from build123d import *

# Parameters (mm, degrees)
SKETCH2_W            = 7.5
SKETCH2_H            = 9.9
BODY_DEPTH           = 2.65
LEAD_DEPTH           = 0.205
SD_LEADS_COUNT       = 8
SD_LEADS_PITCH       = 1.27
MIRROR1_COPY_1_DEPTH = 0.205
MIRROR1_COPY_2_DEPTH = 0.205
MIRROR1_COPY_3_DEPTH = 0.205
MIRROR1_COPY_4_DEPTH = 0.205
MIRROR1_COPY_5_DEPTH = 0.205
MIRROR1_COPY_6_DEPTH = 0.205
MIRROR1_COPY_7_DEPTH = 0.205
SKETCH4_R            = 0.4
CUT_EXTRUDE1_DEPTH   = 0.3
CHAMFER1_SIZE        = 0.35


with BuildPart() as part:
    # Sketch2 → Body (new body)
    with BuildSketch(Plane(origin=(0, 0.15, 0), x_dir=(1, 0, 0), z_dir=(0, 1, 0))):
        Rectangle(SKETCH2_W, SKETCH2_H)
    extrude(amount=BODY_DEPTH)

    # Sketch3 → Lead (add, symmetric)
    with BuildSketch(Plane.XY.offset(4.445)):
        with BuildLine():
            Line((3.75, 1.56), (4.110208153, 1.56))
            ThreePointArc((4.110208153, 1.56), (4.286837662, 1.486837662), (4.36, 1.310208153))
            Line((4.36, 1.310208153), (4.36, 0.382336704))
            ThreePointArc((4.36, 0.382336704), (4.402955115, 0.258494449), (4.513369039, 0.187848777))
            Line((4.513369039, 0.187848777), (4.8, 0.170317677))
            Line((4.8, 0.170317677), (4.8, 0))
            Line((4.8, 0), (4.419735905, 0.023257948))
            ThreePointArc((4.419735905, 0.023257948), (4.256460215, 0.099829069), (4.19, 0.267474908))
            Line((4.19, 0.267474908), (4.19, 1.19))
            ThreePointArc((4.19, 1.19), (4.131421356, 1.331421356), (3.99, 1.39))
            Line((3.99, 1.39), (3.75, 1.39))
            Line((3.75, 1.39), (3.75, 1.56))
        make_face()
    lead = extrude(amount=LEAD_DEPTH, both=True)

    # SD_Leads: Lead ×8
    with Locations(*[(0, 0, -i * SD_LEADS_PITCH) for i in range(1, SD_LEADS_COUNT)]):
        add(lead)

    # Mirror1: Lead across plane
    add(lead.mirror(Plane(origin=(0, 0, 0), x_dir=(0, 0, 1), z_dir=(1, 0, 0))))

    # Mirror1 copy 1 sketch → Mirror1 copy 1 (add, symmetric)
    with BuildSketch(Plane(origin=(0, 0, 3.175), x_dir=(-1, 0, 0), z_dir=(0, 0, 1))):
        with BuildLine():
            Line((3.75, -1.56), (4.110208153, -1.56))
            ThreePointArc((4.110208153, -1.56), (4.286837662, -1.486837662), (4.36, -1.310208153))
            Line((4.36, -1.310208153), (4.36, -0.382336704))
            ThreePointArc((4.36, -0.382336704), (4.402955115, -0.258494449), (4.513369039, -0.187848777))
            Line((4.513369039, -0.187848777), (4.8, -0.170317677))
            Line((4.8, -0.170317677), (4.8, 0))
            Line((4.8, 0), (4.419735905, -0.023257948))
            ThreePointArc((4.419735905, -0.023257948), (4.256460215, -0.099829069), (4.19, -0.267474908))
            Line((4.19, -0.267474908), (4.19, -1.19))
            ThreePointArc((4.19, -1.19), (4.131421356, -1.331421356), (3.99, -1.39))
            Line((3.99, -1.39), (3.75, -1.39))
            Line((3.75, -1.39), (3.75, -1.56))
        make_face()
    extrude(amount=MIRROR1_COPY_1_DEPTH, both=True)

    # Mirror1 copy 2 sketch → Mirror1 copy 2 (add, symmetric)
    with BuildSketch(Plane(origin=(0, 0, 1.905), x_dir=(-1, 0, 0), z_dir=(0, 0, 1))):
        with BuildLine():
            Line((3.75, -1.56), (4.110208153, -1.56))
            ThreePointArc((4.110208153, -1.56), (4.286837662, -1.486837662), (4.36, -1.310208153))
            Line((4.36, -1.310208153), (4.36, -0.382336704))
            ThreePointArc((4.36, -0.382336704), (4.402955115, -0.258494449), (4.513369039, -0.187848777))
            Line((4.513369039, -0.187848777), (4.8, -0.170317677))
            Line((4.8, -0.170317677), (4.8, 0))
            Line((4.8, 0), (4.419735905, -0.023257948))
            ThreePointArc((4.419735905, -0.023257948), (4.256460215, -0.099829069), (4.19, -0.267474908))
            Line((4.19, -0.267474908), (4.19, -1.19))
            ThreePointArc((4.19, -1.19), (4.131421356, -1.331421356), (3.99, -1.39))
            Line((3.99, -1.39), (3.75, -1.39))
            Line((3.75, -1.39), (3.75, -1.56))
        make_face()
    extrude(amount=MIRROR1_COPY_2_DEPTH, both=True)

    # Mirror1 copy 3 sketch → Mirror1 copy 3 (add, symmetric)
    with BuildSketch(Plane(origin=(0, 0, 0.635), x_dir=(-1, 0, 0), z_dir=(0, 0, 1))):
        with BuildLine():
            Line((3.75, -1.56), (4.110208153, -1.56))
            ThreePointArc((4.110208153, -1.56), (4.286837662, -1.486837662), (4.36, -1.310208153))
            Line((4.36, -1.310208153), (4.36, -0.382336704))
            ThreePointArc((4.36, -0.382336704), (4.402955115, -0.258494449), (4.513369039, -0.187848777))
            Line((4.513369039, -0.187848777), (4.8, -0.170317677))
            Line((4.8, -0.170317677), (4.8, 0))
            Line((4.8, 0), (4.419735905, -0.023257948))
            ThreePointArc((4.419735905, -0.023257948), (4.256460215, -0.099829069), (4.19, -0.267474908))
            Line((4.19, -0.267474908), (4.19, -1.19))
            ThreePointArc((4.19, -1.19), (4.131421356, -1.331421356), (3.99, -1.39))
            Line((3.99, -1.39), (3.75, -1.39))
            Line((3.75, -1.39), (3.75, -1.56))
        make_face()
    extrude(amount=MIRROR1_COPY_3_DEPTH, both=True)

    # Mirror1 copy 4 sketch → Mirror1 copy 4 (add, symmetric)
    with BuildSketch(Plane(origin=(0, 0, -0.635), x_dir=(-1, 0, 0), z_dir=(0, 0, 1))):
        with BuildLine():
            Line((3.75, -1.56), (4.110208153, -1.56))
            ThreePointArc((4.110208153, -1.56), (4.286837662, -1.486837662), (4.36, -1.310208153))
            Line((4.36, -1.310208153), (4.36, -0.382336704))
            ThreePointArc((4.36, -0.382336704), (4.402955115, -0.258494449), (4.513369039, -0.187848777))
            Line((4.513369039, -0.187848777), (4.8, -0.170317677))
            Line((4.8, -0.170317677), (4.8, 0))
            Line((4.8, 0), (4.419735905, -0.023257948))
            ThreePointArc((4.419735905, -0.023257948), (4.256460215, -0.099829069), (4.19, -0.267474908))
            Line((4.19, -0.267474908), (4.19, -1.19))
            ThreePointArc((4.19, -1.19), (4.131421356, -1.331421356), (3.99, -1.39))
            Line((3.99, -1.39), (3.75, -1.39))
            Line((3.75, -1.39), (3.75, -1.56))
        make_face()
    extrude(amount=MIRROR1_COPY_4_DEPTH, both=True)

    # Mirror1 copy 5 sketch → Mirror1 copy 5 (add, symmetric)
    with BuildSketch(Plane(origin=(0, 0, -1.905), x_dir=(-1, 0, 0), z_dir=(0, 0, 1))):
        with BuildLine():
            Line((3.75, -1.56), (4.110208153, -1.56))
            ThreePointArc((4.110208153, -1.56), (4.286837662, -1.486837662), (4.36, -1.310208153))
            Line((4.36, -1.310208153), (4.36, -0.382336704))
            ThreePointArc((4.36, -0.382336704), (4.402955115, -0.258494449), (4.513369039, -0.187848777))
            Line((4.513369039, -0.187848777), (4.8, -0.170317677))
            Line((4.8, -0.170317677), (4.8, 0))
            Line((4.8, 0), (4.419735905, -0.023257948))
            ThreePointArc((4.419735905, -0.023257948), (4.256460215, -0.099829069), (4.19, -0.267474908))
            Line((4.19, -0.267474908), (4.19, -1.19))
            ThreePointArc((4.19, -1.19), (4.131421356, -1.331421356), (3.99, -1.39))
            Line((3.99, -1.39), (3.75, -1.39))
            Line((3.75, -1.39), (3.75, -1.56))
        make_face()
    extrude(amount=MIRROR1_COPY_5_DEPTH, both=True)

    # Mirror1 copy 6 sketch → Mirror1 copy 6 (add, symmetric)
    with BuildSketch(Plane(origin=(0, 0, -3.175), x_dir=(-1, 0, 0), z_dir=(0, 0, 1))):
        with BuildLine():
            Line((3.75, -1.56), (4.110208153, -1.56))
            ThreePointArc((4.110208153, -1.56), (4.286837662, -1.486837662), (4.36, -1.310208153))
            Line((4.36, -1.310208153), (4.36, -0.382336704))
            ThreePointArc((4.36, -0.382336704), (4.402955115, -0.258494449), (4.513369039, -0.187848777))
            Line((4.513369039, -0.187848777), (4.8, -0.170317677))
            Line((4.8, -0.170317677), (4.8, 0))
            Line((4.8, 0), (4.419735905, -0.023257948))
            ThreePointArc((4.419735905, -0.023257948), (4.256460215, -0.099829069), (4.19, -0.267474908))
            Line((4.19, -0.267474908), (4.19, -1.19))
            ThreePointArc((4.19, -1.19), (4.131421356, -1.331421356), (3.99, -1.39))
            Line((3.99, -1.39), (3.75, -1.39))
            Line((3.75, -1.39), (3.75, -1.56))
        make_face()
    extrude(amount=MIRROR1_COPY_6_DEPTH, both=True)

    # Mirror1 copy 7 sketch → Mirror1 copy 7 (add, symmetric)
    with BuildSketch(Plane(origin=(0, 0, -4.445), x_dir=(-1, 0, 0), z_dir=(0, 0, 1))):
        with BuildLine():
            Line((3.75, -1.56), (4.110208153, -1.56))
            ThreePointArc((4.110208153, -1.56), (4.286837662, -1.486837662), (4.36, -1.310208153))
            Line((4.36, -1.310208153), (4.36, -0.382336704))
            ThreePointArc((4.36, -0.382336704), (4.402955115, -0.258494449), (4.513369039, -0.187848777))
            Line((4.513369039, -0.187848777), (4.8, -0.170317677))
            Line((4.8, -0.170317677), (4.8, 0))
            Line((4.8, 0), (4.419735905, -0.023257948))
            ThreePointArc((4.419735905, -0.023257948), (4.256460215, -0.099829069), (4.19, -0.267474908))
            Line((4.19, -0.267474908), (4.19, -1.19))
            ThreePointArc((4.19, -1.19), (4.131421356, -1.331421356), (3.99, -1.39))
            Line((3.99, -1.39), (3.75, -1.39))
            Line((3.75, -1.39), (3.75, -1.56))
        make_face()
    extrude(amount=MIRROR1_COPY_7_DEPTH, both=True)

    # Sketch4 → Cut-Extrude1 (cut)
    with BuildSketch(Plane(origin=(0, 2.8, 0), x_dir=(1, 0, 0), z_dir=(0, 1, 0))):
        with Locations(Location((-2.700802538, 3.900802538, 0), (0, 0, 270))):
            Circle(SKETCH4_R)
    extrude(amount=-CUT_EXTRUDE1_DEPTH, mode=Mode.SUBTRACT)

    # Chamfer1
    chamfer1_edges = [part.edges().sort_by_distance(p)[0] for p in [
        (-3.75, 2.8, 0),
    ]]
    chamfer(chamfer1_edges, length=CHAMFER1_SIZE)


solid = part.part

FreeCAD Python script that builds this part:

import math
import FreeCAD as App
import Part
import Sketcher
from FreeCAD import Vector
Q = App.Units.Quantity


def edges_at(feature, points):
    """Names of the edges that pass closest to the given points."""
    edges = feature.Shape.Edges
    near = lambda p: min(range(len(edges)), key=lambda i: edges[i].distToShape(Part.Vertex(*p))[0])
    return sorted({f"Edge{near(p) + 1}" for p in points})


def add_polygon(sketch, points):
    """Adds a closed chain of lines whose ends are joined by coincident constraints."""
    first, n = sketch.GeometryCount, len(points)
    for a, b in zip(points, points[1:] + points[:1]):
        sketch.addGeometry(Part.LineSegment(App.Vector(*a, 0), App.Vector(*b, 0)), False)
    for i in range(n):
        sketch.addConstraint(Sketcher.Constraint("Coincident", first + i, 2, first + (i + 1) % n, 1))

doc = App.newDocument("Part")
body = doc.addObject("PartDesign::Body", "Body")

# Sketch on XZ plane
sketch1 = body.newObject("Sketcher::SketchObject", "Sketch")
sketch1.AttachmentSupport = (doc.getObject("XZ_Plane"), [""])
sketch1.MapMode = "FlatFace"
sketch1.AttachmentOffset = App.Placement(Vector(0, 0, -0.15), App.Rotation())
add_polygon(sketch1, [(-4, -5), (-4, 5), (4, 5), (4, -5)])  # lines 0-3
sketch1.addConstraint([
    Sketcher.Constraint("Vertical", 0),
    Sketcher.Constraint("Horizontal", 1),
    Sketcher.Constraint("Vertical", 2),
    Sketcher.Constraint("Horizontal", 3),
    Sketcher.Constraint("Symmetric", 0, 2, 2, 2, -1, 1),
    Sketcher.Constraint("DistanceX", 1, 1, 1, 2, Q("7.5 mm")),
    Sketcher.Constraint("DistanceY", 0, 1, 0, 2, Q("9.9 mm")),
])
pad1 = body.newObject("PartDesign::Pad", "Pad")
pad1.Profile = sketch1
pad1.Length = 2.65
pad1.Reversed = True

# Sketch on XY plane
sketch2 = body.newObject("Sketcher::SketchObject", "Sketch001")
sketch2.AttachmentSupport = (doc.getObject("XY_Plane"), [""])
sketch2.MapMode = "FlatFace"
sketch2.AttachmentOffset = App.Placement(Vector(0, 0, 4.445), App.Rotation())
sketch2.addGeometry([
    Part.LineSegment(Vector(4.11, 1.56, 0), Vector(3.75, 1.56, 0)),  # 0
    Part.LineSegment(Vector(3.75, 1.56, 0), Vector(3.75, 1.39, 0)),  # 1
    Part.LineSegment(Vector(3.75, 1.39, 0), Vector(3.99, 1.39, 0)),  # 2
    Part.ArcOfCircle(Part.Circle(Vector(3.99, 1.19, 0), Vector(0, 0, 1), 0.2), math.radians(0), math.radians(90)),  # 3
    Part.LineSegment(Vector(4.19, 1.19, 0), Vector(4.19, 0.27, 0)),  # 4
    Part.ArcOfCircle(Part.Circle(Vector(4.43, 0.27, 0), Vector(0, 0, 1), 0.24), math.radians(-180), math.radians(-94)),  # 5
    Part.LineSegment(Vector(4.42, 0.02, 0), Vector(4.8, 0, 0)),  # 6
    Part.LineSegment(Vector(4.8, 0, 0), Vector(4.8, 0.17, 0)),  # 7
    Part.LineSegment(Vector(4.8, 0.17, 0), Vector(4.51, 0.19, 0)),  # 8
    Part.ArcOfCircle(Part.Circle(Vector(4.56, 0.38, 0), Vector(0, 0, 1), 0.2), math.radians(180), math.radians(257)),  # 9
    Part.LineSegment(Vector(4.36, 0.38, 0), Vector(4.36, 1.31, 0)),  # 10
    Part.ArcOfCircle(Part.Circle(Vector(4.11, 1.31, 0), Vector(0, 0, 1), 0.25), math.radians(0), math.radians(90)),  # 11
], False)
sketch2.addConstraint([
    Sketcher.Constraint("Coincident", 0, 2, 1, 1),
    Sketcher.Constraint("Coincident", 1, 2, 2, 1),
    Sketcher.Constraint("Tangent", 2, 2, 3, 2),
    Sketcher.Constraint("Tangent", 3, 1, 4, 1),
    Sketcher.Constraint("Tangent", 4, 2, 5, 1),
    Sketcher.Constraint("Coincident", 5, 2, 6, 1),
    Sketcher.Constraint("Coincident", 6, 2, 7, 1),
    Sketcher.Constraint("Coincident", 7, 2, 8, 1),
    Sketcher.Constraint("Coincident", 8, 2, 9, 2),
    Sketcher.Constraint("Tangent", 9, 1, 10, 1),
    Sketcher.Constraint("Tangent", 10, 2, 11, 1),
    Sketcher.Constraint("Tangent", 11, 2, 0, 1),
    Sketcher.Constraint("Horizontal", 0),
    Sketcher.Constraint("Vertical", 1),
    Sketcher.Constraint("Horizontal", 2),
    Sketcher.Constraint("Vertical", 4),
    Sketcher.Constraint("Vertical", 7),
    Sketcher.Constraint("Vertical", 10),
    Sketcher.Constraint("Equal", 3, 9),
    Sketcher.Constraint("PointOnObject", 6, 2, -1),
    Sketcher.Constraint("Parallel", 6, 8),
    Sketcher.Constraint("Radius", 3, Q("0.2 mm")),
    Sketcher.Constraint("Angle", 6, Q("-3.5 deg")),
    Sketcher.Constraint("DistanceX", 2, 1, 2, 2, Q("0.24 mm")),
    Sketcher.Constraint("DistanceY", 1, 2, 1, 1, Q("0.17 mm")),
    Sketcher.Constraint("DistanceX", -1, 1, 6, 2, Q("4.8 mm")),
    Sketcher.Constraint("DistanceX", -1, 1, 3, 3, Q("3.99 mm")),
    Sketcher.Constraint("DistanceY", -1, 1, 3, 3, Q("1.19 mm")),
    Sketcher.Constraint("DistanceX", -1, 1, 9, 3, Q("4.56 mm")),
    Sketcher.Constraint("Radius", 11, Q("0.249792 mm")),
    Sketcher.Constraint("Radius", 5, Q("0.244673 mm")),
    Sketcher.Constraint("DistanceY", 10, 1, 10, 2, Q("0.927871 mm")),
    Sketcher.Constraint("DistanceY", 7, 1, 7, 2, Q("0.170318 mm")),
    Sketcher.Constraint("DistanceY", 5, 2, 9, 3, Q("0.359079 mm")),
])
pad2 = body.newObject("PartDesign::Pad", "Pad001")
pad2.Profile = sketch2
pad2.Length = 0.41
pad2.Midplane = True
doc.recompute()

linearpattern = body.newObject("PartDesign::LinearPattern", "LinearPattern")
linearpattern.Originals = [pad2]
linearpattern.Direction = (doc.getObject("Z_Axis"), [""])
linearpattern.Mode = "offset"
linearpattern.Offset = 1.27
linearpattern.Occurrences = 8
linearpattern.Reversed = True
body.Tip = linearpattern
doc.recompute()

mirrored = body.newObject("PartDesign::Mirrored", "Mirrored")
mirrored.Originals = [pad2]
mirrored.MirrorPlane = (doc.getObject("YZ_Plane"), [""])
body.Tip = mirrored

# Sketch on XY plane
sketch3 = body.newObject("Sketcher::SketchObject", "Sketch002")
sketch3.AttachmentSupport = (doc.getObject("XY_Plane"), [""])
sketch3.MapMode = "FlatFace"
sketch3.AttachmentOffset = App.Placement(Vector(0, 0, 3.175), App.Rotation())
sketch3.addGeometry([
    Part.LineSegment(Vector(-3.75, 1.56, 0), Vector(-4.11, 1.56, 0)),  # 0
    Part.ArcOfCircle(Part.Circle(Vector(-4.11, 1.31, 0), Vector(0, 0, 1), 0.25), math.radians(90), math.radians(180)),  # 1
    Part.LineSegment(Vector(-4.36, 1.31, 0), Vector(-4.36, 0.38, 0)),  # 2
    Part.ArcOfCircle(Part.Circle(Vector(-4.56, 0.38, 0), Vector(0, 0, 1), 0.2), math.radians(-77), math.radians(0)),  # 3
    Part.LineSegment(Vector(-4.51, 0.19, 0), Vector(-4.8, 0.17, 0)),  # 4
    Part.LineSegment(Vector(-4.8, 0.17, 0), Vector(-4.8, 0, 0)),  # 5
    Part.LineSegment(Vector(-4.8, 0, 0), Vector(-4.42, 0.02, 0)),  # 6
    Part.ArcOfCircle(Part.Circle(Vector(-4.43, 0.27, 0), Vector(0, 0, 1), 0.24), math.radians(-86), math.radians(0)),  # 7
    Part.LineSegment(Vector(-4.19, 0.27, 0), Vector(-4.19, 1.19, 0)),  # 8
    Part.ArcOfCircle(Part.Circle(Vector(-3.99, 1.19, 0), Vector(0, 0, 1), 0.2), math.radians(90), math.radians(180)),  # 9
    Part.LineSegment(Vector(-3.99, 1.39, 0), Vector(-3.75, 1.39, 0)),  # 10
    Part.LineSegment(Vector(-3.75, 1.39, 0), Vector(-3.75, 1.56, 0)),  # 11
], False)
sketch3.addConstraint([
    Sketcher.Constraint("Tangent", 0, 2, 1, 1),
    Sketcher.Constraint("Tangent", 1, 2, 2, 1),
    Sketcher.Constraint("Tangent", 2, 2, 3, 2),
    Sketcher.Constraint("Coincident", 3, 1, 4, 1),
    Sketcher.Constraint("Coincident", 4, 2, 5, 1),
    Sketcher.Constraint("Coincident", 5, 2, 6, 1),
    Sketcher.Constraint("Coincident", 6, 2, 7, 1),
    Sketcher.Constraint("Tangent", 7, 2, 8, 1),
    Sketcher.Constraint("Tangent", 8, 2, 9, 2),
    Sketcher.Constraint("Tangent", 9, 1, 10, 1),
    Sketcher.Constraint("Coincident", 10, 2, 11, 1),
    Sketcher.Constraint("Coincident", 11, 2, 0, 1),
    Sketcher.Constraint("Horizontal", 0),
    Sketcher.Constraint("Vertical", 2),
    Sketcher.Constraint("Vertical", 5),
    Sketcher.Constraint("Vertical", 8),
    Sketcher.Constraint("Horizontal", 10),
    Sketcher.Constraint("Vertical", 11),
    Sketcher.Constraint("Equal", 3, 9),
    Sketcher.Constraint("PointOnObject", 5, 2, -1),
    Sketcher.Constraint("Parallel", 4, 6),
    Sketcher.Constraint("Radius", 3, Q("0.2 mm")),
    Sketcher.Constraint("Angle", 4, Q("-176.5 deg")),
    Sketcher.Constraint("DistanceX", 10, 1, 10, 2, Q("0.24 mm")),
    Sketcher.Constraint("DistanceY", 11, 1, 11, 2, Q("0.17 mm")),
    Sketcher.Constraint("DistanceX", 4, 2, -1, 1, Q("4.8 mm")),
    Sketcher.Constraint("DistanceX", 3, 3, -1, 1, Q("4.56 mm")),
    Sketcher.Constraint("DistanceX", 9, 3, -1, 1, Q("3.99 mm")),
    Sketcher.Constraint("DistanceY", -1, 1, 9, 3, Q("1.19 mm")),
    Sketcher.Constraint("Radius", 1, Q("0.249792 mm")),
    Sketcher.Constraint("Radius", 7, Q("0.244673 mm")),
    Sketcher.Constraint("DistanceY", 2, 2, 2, 1, Q("0.927871 mm")),
    Sketcher.Constraint("DistanceY", 5, 2, 5, 1, Q("0.170318 mm")),
    Sketcher.Constraint("DistanceY", 6, 2, 3, 1, Q("0.164591 mm")),
])
pad3 = body.newObject("PartDesign::Pad", "Pad002")
pad3.Profile = sketch3
pad3.Length = 0.41
pad3.Midplane = True

# Sketch on XY plane
sketch4 = body.newObject("Sketcher::SketchObject", "Sketch003")
sketch4.AttachmentSupport = (doc.getObject("XY_Plane"), [""])
sketch4.MapMode = "FlatFace"
sketch4.AttachmentOffset = App.Placement(Vector(0, 0, 1.905), App.Rotation())
sketch4.addGeometry([
    Part.LineSegment(Vector(-3.75, 1.56, 0), Vector(-4.11, 1.56, 0)),  # 0
    Part.ArcOfCircle(Part.Circle(Vector(-4.11, 1.31, 0), Vector(0, 0, 1), 0.25), math.radians(90), math.radians(180)),  # 1
    Part.LineSegment(Vector(-4.36, 1.31, 0), Vector(-4.36, 0.38, 0)),  # 2
    Part.ArcOfCircle(Part.Circle(Vector(-4.56, 0.38, 0), Vector(0, 0, 1), 0.2), math.radians(-77), math.radians(0)),  # 3
    Part.LineSegment(Vector(-4.51, 0.19, 0), Vector(-4.8, 0.17, 0)),  # 4
    Part.LineSegment(Vector(-4.8, 0.17, 0), Vector(-4.8, 0, 0)),  # 5
    Part.LineSegment(Vector(-4.8, 0, 0), Vector(-4.42, 0.02, 0)),  # 6
    Part.ArcOfCircle(Part.Circle(Vector(-4.43, 0.27, 0), Vector(0, 0, 1), 0.24), math.radians(-86), math.radians(0)),  # 7
    Part.LineSegment(Vector(-4.19, 0.27, 0), Vector(-4.19, 1.19, 0)),  # 8
    Part.ArcOfCircle(Part.Circle(Vector(-3.99, 1.19, 0), Vector(0, 0, 1), 0.2), math.radians(90), math.radians(180)),  # 9
    Part.LineSegment(Vector(-3.99, 1.39, 0), Vector(-3.75, 1.39, 0)),  # 10
    Part.LineSegment(Vector(-3.75, 1.39, 0), Vector(-3.75, 1.56, 0)),  # 11
], False)
sketch4.addConstraint([
    Sketcher.Constraint("Tangent", 0, 2, 1, 1),
    Sketcher.Constraint("Tangent", 1, 2, 2, 1),
    Sketcher.Constraint("Tangent", 2, 2, 3, 2),
    Sketcher.Constraint("Coincident", 3, 1, 4, 1),
    Sketcher.Constraint("Coincident", 4, 2, 5, 1),
    Sketcher.Constraint("Coincident", 5, 2, 6, 1),
    Sketcher.Constraint("Coincident", 6, 2, 7, 1),
    Sketcher.Constraint("Tangent", 7, 2, 8, 1),
    Sketcher.Constraint("Tangent", 8, 2, 9, 2),
    Sketcher.Constraint("Tangent", 9, 1, 10, 1),
    Sketcher.Constraint("Coincident", 10, 2, 11, 1),
    Sketcher.Constraint("Coincident", 11, 2, 0, 1),
    Sketcher.Constraint("Horizontal", 0),
    Sketcher.Constraint("Vertical", 2),
    Sketcher.Constraint("Vertical", 5),
    Sketcher.Constraint("Vertical", 8),
    Sketcher.Constraint("Horizontal", 10),
    Sketcher.Constraint("Vertical", 11),
    Sketcher.Constraint("Equal", 3, 9),
    Sketcher.Constraint("PointOnObject", 5, 2, -1),
    Sketcher.Constraint("Parallel", 4, 6),
    Sketcher.Constraint("Radius", 3, Q("0.2 mm")),
    Sketcher.Constraint("Angle", 4, Q("-176.5 deg")),
    Sketcher.Constraint("DistanceX", 10, 1, 10, 2, Q("0.24 mm")),
    Sketcher.Constraint("DistanceY", 11, 1, 11, 2, Q("0.17 mm")),
    Sketcher.Constraint("DistanceX", 4, 2, -1, 1, Q("4.8 mm")),
    Sketcher.Constraint("DistanceX", 3, 3, -1, 1, Q("4.56 mm")),
    Sketcher.Constraint("DistanceX", 9, 3, -1, 1, Q("3.99 mm")),
    Sketcher.Constraint("DistanceY", -1, 1, 9, 3, Q("1.19 mm")),
    Sketcher.Constraint("Radius", 1, Q("0.249792 mm")),
    Sketcher.Constraint("Radius", 7, Q("0.244673 mm")),
    Sketcher.Constraint("DistanceY", 2, 2, 2, 1, Q("0.927871 mm")),
    Sketcher.Constraint("DistanceY", 5, 2, 5, 1, Q("0.170318 mm")),
    Sketcher.Constraint("DistanceY", 6, 2, 3, 1, Q("0.164591 mm")),
])
pad4 = body.newObject("PartDesign::Pad", "Pad003")
pad4.Profile = sketch4
pad4.Length = 0.41
pad4.Midplane = True

# Sketch on XY plane
sketch5 = body.newObject("Sketcher::SketchObject", "Sketch004")
sketch5.AttachmentSupport = (doc.getObject("XY_Plane"), [""])
sketch5.MapMode = "FlatFace"
sketch5.AttachmentOffset = App.Placement(Vector(0, 0, 0.635), App.Rotation())
sketch5.addGeometry([
    Part.LineSegment(Vector(-3.75, 1.56, 0), Vector(-4.11, 1.56, 0)),  # 0
    Part.ArcOfCircle(Part.Circle(Vector(-4.11, 1.31, 0), Vector(0, 0, 1), 0.25), math.radians(90), math.radians(180)),  # 1
    Part.LineSegment(Vector(-4.36, 1.31, 0), Vector(-4.36, 0.38, 0)),  # 2
    Part.ArcOfCircle(Part.Circle(Vector(-4.56, 0.38, 0), Vector(0, 0, 1), 0.2), math.radians(-77), math.radians(0)),  # 3
    Part.LineSegment(Vector(-4.51, 0.19, 0), Vector(-4.8, 0.17, 0)),  # 4
    Part.LineSegment(Vector(-4.8, 0.17, 0), Vector(-4.8, 0, 0)),  # 5
    Part.LineSegment(Vector(-4.8, 0, 0), Vector(-4.42, 0.02, 0)),  # 6
    Part.ArcOfCircle(Part.Circle(Vector(-4.43, 0.27, 0), Vector(0, 0, 1), 0.24), math.radians(-86), math.radians(0)),  # 7
    Part.LineSegment(Vector(-4.19, 0.27, 0), Vector(-4.19, 1.19, 0)),  # 8
    Part.ArcOfCircle(Part.Circle(Vector(-3.99, 1.19, 0), Vector(0, 0, 1), 0.2), math.radians(90), math.radians(180)),  # 9
    Part.LineSegment(Vector(-3.99, 1.39, 0), Vector(-3.75, 1.39, 0)),  # 10
    Part.LineSegment(Vector(-3.75, 1.39, 0), Vector(-3.75, 1.56, 0)),  # 11
], False)
sketch5.addConstraint([
    Sketcher.Constraint("Tangent", 0, 2, 1, 1),
    Sketcher.Constraint("Tangent", 1, 2, 2, 1),
    Sketcher.Constraint("Tangent", 2, 2, 3, 2),
    Sketcher.Constraint("Coincident", 3, 1, 4, 1),
    Sketcher.Constraint("Coincident", 4, 2, 5, 1),
    Sketcher.Constraint("Coincident", 5, 2, 6, 1),
    Sketcher.Constraint("Coincident", 6, 2, 7, 1),
    Sketcher.Constraint("Tangent", 7, 2, 8, 1),
    Sketcher.Constraint("Tangent", 8, 2, 9, 2),
    Sketcher.Constraint("Tangent", 9, 1, 10, 1),
    Sketcher.Constraint("Coincident", 10, 2, 11, 1),
    Sketcher.Constraint("Coincident", 11, 2, 0, 1),
    Sketcher.Constraint("Horizontal", 0),
    Sketcher.Constraint("Vertical", 2),
    Sketcher.Constraint("Vertical", 5),
    Sketcher.Constraint("Vertical", 8),
    Sketcher.Constraint("Horizontal", 10),
    Sketcher.Constraint("Vertical", 11),
    Sketcher.Constraint("Equal", 3, 9),
    Sketcher.Constraint("PointOnObject", 5, 2, -1),
    Sketcher.Constraint("Parallel", 4, 6),
    Sketcher.Constraint("Radius", 3, Q("0.2 mm")),
    Sketcher.Constraint("Angle", 4, Q("-176.5 deg")),
    Sketcher.Constraint("DistanceX", 10, 1, 10, 2, Q("0.24 mm")),
    Sketcher.Constraint("DistanceY", 11, 1, 11, 2, Q("0.17 mm")),
    Sketcher.Constraint("DistanceX", 4, 2, -1, 1, Q("4.8 mm")),
    Sketcher.Constraint("DistanceX", 3, 3, -1, 1, Q("4.56 mm")),
    Sketcher.Constraint("DistanceX", 9, 3, -1, 1, Q("3.99 mm")),
    Sketcher.Constraint("DistanceY", -1, 1, 9, 3, Q("1.19 mm")),
    Sketcher.Constraint("Radius", 1, Q("0.249792 mm")),
    Sketcher.Constraint("Radius", 7, Q("0.244673 mm")),
    Sketcher.Constraint("DistanceY", 2, 2, 2, 1, Q("0.927871 mm")),
    Sketcher.Constraint("DistanceY", 5, 2, 5, 1, Q("0.170318 mm")),
    Sketcher.Constraint("DistanceY", 6, 2, 3, 1, Q("0.164591 mm")),
])
pad5 = body.newObject("PartDesign::Pad", "Pad004")
pad5.Profile = sketch5
pad5.Length = 0.41
pad5.Midplane = True

# Sketch on XY plane
sketch6 = body.newObject("Sketcher::SketchObject", "Sketch005")
sketch6.AttachmentSupport = (doc.getObject("XY_Plane"), [""])
sketch6.MapMode = "FlatFace"
sketch6.AttachmentOffset = App.Placement(Vector(0, 0, -0.635), App.Rotation())
sketch6.addGeometry([
    Part.LineSegment(Vector(-3.75, 1.56, 0), Vector(-4.11, 1.56, 0)),  # 0
    Part.ArcOfCircle(Part.Circle(Vector(-4.11, 1.31, 0), Vector(0, 0, 1), 0.25), math.radians(90), math.radians(180)),  # 1
    Part.LineSegment(Vector(-4.36, 1.31, 0), Vector(-4.36, 0.38, 0)),  # 2
    Part.ArcOfCircle(Part.Circle(Vector(-4.56, 0.38, 0), Vector(0, 0, 1), 0.2), math.radians(-77), math.radians(0)),  # 3
    Part.LineSegment(Vector(-4.51, 0.19, 0), Vector(-4.8, 0.17, 0)),  # 4
    Part.LineSegment(Vector(-4.8, 0.17, 0), Vector(-4.8, 0, 0)),  # 5
    Part.LineSegment(Vector(-4.8, 0, 0), Vector(-4.42, 0.02, 0)),  # 6
    Part.ArcOfCircle(Part.Circle(Vector(-4.43, 0.27, 0), Vector(0, 0, 1), 0.24), math.radians(-86), math.radians(0)),  # 7
    Part.LineSegment(Vector(-4.19, 0.27, 0), Vector(-4.19, 1.19, 0)),  # 8
    Part.ArcOfCircle(Part.Circle(Vector(-3.99, 1.19, 0), Vector(0, 0, 1), 0.2), math.radians(90), math.radians(180)),  # 9
    Part.LineSegment(Vector(-3.99, 1.39, 0), Vector(-3.75, 1.39, 0)),  # 10
    Part.LineSegment(Vector(-3.75, 1.39, 0), Vector(-3.75, 1.56, 0)),  # 11
], False)
sketch6.addConstraint([
    Sketcher.Constraint("Tangent", 0, 2, 1, 1),
    Sketcher.Constraint("Tangent", 1, 2, 2, 1),
    Sketcher.Constraint("Tangent", 2, 2, 3, 2),
    Sketcher.Constraint("Coincident", 3, 1, 4, 1),
    Sketcher.Constraint("Coincident", 4, 2, 5, 1),
    Sketcher.Constraint("Coincident", 5, 2, 6, 1),
    Sketcher.Constraint("Coincident", 6, 2, 7, 1),
    Sketcher.Constraint("Tangent", 7, 2, 8, 1),
    Sketcher.Constraint("Tangent", 8, 2, 9, 2),
    Sketcher.Constraint("Tangent", 9, 1, 10, 1),
    Sketcher.Constraint("Coincident", 10, 2, 11, 1),
    Sketcher.Constraint("Coincident", 11, 2, 0, 1),
    Sketcher.Constraint("Horizontal", 0),
    Sketcher.Constraint("Vertical", 2),
    Sketcher.Constraint("Vertical", 5),
    Sketcher.Constraint("Vertical", 8),
    Sketcher.Constraint("Horizontal", 10),
    Sketcher.Constraint("Vertical", 11),
    Sketcher.Constraint("Equal", 3, 9),
    Sketcher.Constraint("PointOnObject", 5, 2, -1),
    Sketcher.Constraint("Parallel", 4, 6),
    Sketcher.Constraint("Radius", 3, Q("0.2 mm")),
    Sketcher.Constraint("Angle", 4, Q("-176.5 deg")),
    Sketcher.Constraint("DistanceX", 10, 1, 10, 2, Q("0.24 mm")),
    Sketcher.Constraint("DistanceY", 11, 1, 11, 2, Q("0.17 mm")),
    Sketcher.Constraint("DistanceX", 4, 2, -1, 1, Q("4.8 mm")),
    Sketcher.Constraint("DistanceX", 3, 3, -1, 1, Q("4.56 mm")),
    Sketcher.Constraint("DistanceX", 9, 3, -1, 1, Q("3.99 mm")),
    Sketcher.Constraint("DistanceY", -1, 1, 9, 3, Q("1.19 mm")),
    Sketcher.Constraint("Radius", 1, Q("0.249792 mm")),
    Sketcher.Constraint("Radius", 7, Q("0.244673 mm")),
    Sketcher.Constraint("DistanceY", 2, 2, 2, 1, Q("0.927871 mm")),
    Sketcher.Constraint("DistanceY", 5, 2, 5, 1, Q("0.170318 mm")),
    Sketcher.Constraint("DistanceY", 6, 2, 3, 1, Q("0.164591 mm")),
])
pad6 = body.newObject("PartDesign::Pad", "Pad005")
pad6.Profile = sketch6
pad6.Length = 0.41
pad6.Midplane = True

# Sketch on XY plane
sketch7 = body.newObject("Sketcher::SketchObject", "Sketch006")
sketch7.AttachmentSupport = (doc.getObject("XY_Plane"), [""])
sketch7.MapMode = "FlatFace"
sketch7.AttachmentOffset = App.Placement(Vector(0, 0, -1.905), App.Rotation())
sketch7.addGeometry([
    Part.LineSegment(Vector(-3.75, 1.56, 0), Vector(-4.11, 1.56, 0)),  # 0
    Part.ArcOfCircle(Part.Circle(Vector(-4.11, 1.31, 0), Vector(0, 0, 1), 0.25), math.radians(90), math.radians(180)),  # 1
    Part.LineSegment(Vector(-4.36, 1.31, 0), Vector(-4.36, 0.38, 0)),  # 2
    Part.ArcOfCircle(Part.Circle(Vector(-4.56, 0.38, 0), Vector(0, 0, 1), 0.2), math.radians(-77), math.radians(0)),  # 3
    Part.LineSegment(Vector(-4.51, 0.19, 0), Vector(-4.8, 0.17, 0)),  # 4
    Part.LineSegment(Vector(-4.8, 0.17, 0), Vector(-4.8, 0, 0)),  # 5
    Part.LineSegment(Vector(-4.8, 0, 0), Vector(-4.42, 0.02, 0)),  # 6
    Part.ArcOfCircle(Part.Circle(Vector(-4.43, 0.27, 0), Vector(0, 0, 1), 0.24), math.radians(-86), math.radians(0)),  # 7
    Part.LineSegment(Vector(-4.19, 0.27, 0), Vector(-4.19, 1.19, 0)),  # 8
    Part.ArcOfCircle(Part.Circle(Vector(-3.99, 1.19, 0), Vector(0, 0, 1), 0.2), math.radians(90), math.radians(180)),  # 9
    Part.LineSegment(Vector(-3.99, 1.39, 0), Vector(-3.75, 1.39, 0)),  # 10
    Part.LineSegment(Vector(-3.75, 1.39, 0), Vector(-3.75, 1.56, 0)),  # 11
], False)
sketch7.addConstraint([
    Sketcher.Constraint("Tangent", 0, 2, 1, 1),
    Sketcher.Constraint("Tangent", 1, 2, 2, 1),
    Sketcher.Constraint("Tangent", 2, 2, 3, 2),
    Sketcher.Constraint("Coincident", 3, 1, 4, 1),
    Sketcher.Constraint("Coincident", 4, 2, 5, 1),
    Sketcher.Constraint("Coincident", 5, 2, 6, 1),
    Sketcher.Constraint("Coincident", 6, 2, 7, 1),
    Sketcher.Constraint("Tangent", 7, 2, 8, 1),
    Sketcher.Constraint("Tangent", 8, 2, 9, 2),
    Sketcher.Constraint("Tangent", 9, 1, 10, 1),
    Sketcher.Constraint("Coincident", 10, 2, 11, 1),
    Sketcher.Constraint("Coincident", 11, 2, 0, 1),
    Sketcher.Constraint("Horizontal", 0),
    Sketcher.Constraint("Vertical", 2),
    Sketcher.Constraint("Vertical", 5),
    Sketcher.Constraint("Vertical", 8),
    Sketcher.Constraint("Horizontal", 10),
    Sketcher.Constraint("Vertical", 11),
    Sketcher.Constraint("Equal", 3, 9),
    Sketcher.Constraint("PointOnObject", 5, 2, -1),
    Sketcher.Constraint("Parallel", 4, 6),
    Sketcher.Constraint("Radius", 3, Q("0.2 mm")),
    Sketcher.Constraint("Angle", 4, Q("-176.5 deg")),
    Sketcher.Constraint("DistanceX", 10, 1, 10, 2, Q("0.24 mm")),
    Sketcher.Constraint("DistanceY", 11, 1, 11, 2, Q("0.17 mm")),
    Sketcher.Constraint("DistanceX", 4, 2, -1, 1, Q("4.8 mm")),
    Sketcher.Constraint("DistanceX", 3, 3, -1, 1, Q("4.56 mm")),
    Sketcher.Constraint("DistanceX", 9, 3, -1, 1, Q("3.99 mm")),
    Sketcher.Constraint("DistanceY", -1, 1, 9, 3, Q("1.19 mm")),
    Sketcher.Constraint("Radius", 1, Q("0.249792 mm")),
    Sketcher.Constraint("Radius", 7, Q("0.244673 mm")),
    Sketcher.Constraint("DistanceY", 2, 2, 2, 1, Q("0.927871 mm")),
    Sketcher.Constraint("DistanceY", 5, 2, 5, 1, Q("0.170318 mm")),
    Sketcher.Constraint("DistanceY", 6, 2, 3, 1, Q("0.164591 mm")),
])
pad7 = body.newObject("PartDesign::Pad", "Pad006")
pad7.Profile = sketch7
pad7.Length = 0.41
pad7.Midplane = True

# Sketch on XY plane
sketch8 = body.newObject("Sketcher::SketchObject", "Sketch007")
sketch8.AttachmentSupport = (doc.getObject("XY_Plane"), [""])
sketch8.MapMode = "FlatFace"
sketch8.AttachmentOffset = App.Placement(Vector(0, 0, -3.175), App.Rotation())
sketch8.addGeometry([
    Part.LineSegment(Vector(-3.75, 1.56, 0), Vector(-4.11, 1.56, 0)),  # 0
    Part.ArcOfCircle(Part.Circle(Vector(-4.11, 1.31, 0), Vector(0, 0, 1), 0.25), math.radians(90), math.radians(180)),  # 1
    Part.LineSegment(Vector(-4.36, 1.31, 0), Vector(-4.36, 0.38, 0)),  # 2
    Part.ArcOfCircle(Part.Circle(Vector(-4.56, 0.38, 0), Vector(0, 0, 1), 0.2), math.radians(-77), math.radians(0)),  # 3
    Part.LineSegment(Vector(-4.51, 0.19, 0), Vector(-4.8, 0.17, 0)),  # 4
    Part.LineSegment(Vector(-4.8, 0.17, 0), Vector(-4.8, 0, 0)),  # 5
    Part.LineSegment(Vector(-4.8, 0, 0), Vector(-4.42, 0.02, 0)),  # 6
    Part.ArcOfCircle(Part.Circle(Vector(-4.43, 0.27, 0), Vector(0, 0, 1), 0.24), math.radians(-86), math.radians(0)),  # 7
    Part.LineSegment(Vector(-4.19, 0.27, 0), Vector(-4.19, 1.19, 0)),  # 8
    Part.ArcOfCircle(Part.Circle(Vector(-3.99, 1.19, 0), Vector(0, 0, 1), 0.2), math.radians(90), math.radians(180)),  # 9
    Part.LineSegment(Vector(-3.99, 1.39, 0), Vector(-3.75, 1.39, 0)),  # 10
    Part.LineSegment(Vector(-3.75, 1.39, 0), Vector(-3.75, 1.56, 0)),  # 11
], False)
sketch8.addConstraint([
    Sketcher.Constraint("Tangent", 0, 2, 1, 1),
    Sketcher.Constraint("Tangent", 1, 2, 2, 1),
    Sketcher.Constraint("Tangent", 2, 2, 3, 2),
    Sketcher.Constraint("Coincident", 3, 1, 4, 1),
    Sketcher.Constraint("Coincident", 4, 2, 5, 1),
    Sketcher.Constraint("Coincident", 5, 2, 6, 1),
    Sketcher.Constraint("Coincident", 6, 2, 7, 1),
    Sketcher.Constraint("Tangent", 7, 2, 8, 1),
    Sketcher.Constraint("Tangent", 8, 2, 9, 2),
    Sketcher.Constraint("Tangent", 9, 1, 10, 1),
    Sketcher.Constraint("Coincident", 10, 2, 11, 1),
    Sketcher.Constraint("Coincident", 11, 2, 0, 1),
    Sketcher.Constraint("Horizontal", 0),
    Sketcher.Constraint("Vertical", 2),
    Sketcher.Constraint("Vertical", 5),
    Sketcher.Constraint("Vertical", 8),
    Sketcher.Constraint("Horizontal", 10),
    Sketcher.Constraint("Vertical", 11),
    Sketcher.Constraint("Equal", 3, 9),
    Sketcher.Constraint("PointOnObject", 5, 2, -1),
    Sketcher.Constraint("Parallel", 4, 6),
    Sketcher.Constraint("Radius", 3, Q("0.2 mm")),
    Sketcher.Constraint("Angle", 4, Q("-176.5 deg")),
    Sketcher.Constraint("DistanceX", 10, 1, 10, 2, Q("0.24 mm")),
    Sketcher.Constraint("DistanceY", 11, 1, 11, 2, Q("0.17 mm")),
    Sketcher.Constraint("DistanceX", 4, 2, -1, 1, Q("4.8 mm")),
    Sketcher.Constraint("DistanceX", 3, 3, -1, 1, Q("4.56 mm")),
    Sketcher.Constraint("DistanceX", 9, 3, -1, 1, Q("3.99 mm")),
    Sketcher.Constraint("DistanceY", -1, 1, 9, 3, Q("1.19 mm")),
    Sketcher.Constraint("Radius", 1, Q("0.249792 mm")),
    Sketcher.Constraint("Radius", 7, Q("0.244673 mm")),
    Sketcher.Constraint("DistanceY", 2, 2, 2, 1, Q("0.927871 mm")),
    Sketcher.Constraint("DistanceY", 5, 2, 5, 1, Q("0.170318 mm")),
    Sketcher.Constraint("DistanceY", 6, 2, 3, 1, Q("0.164591 mm")),
])
pad8 = body.newObject("PartDesign::Pad", "Pad007")
pad8.Profile = sketch8
pad8.Length = 0.41
pad8.Midplane = True

# Sketch on XY plane
sketch9 = body.newObject("Sketcher::SketchObject", "Sketch008")
sketch9.AttachmentSupport = (doc.getObject("XY_Plane"), [""])
sketch9.MapMode = "FlatFace"
sketch9.AttachmentOffset = App.Placement(Vector(0, 0, -4.445), App.Rotation())
sketch9.addGeometry([
    Part.LineSegment(Vector(-3.75, 1.56, 0), Vector(-4.11, 1.56, 0)),  # 0
    Part.ArcOfCircle(Part.Circle(Vector(-4.11, 1.31, 0), Vector(0, 0, 1), 0.25), math.radians(90), math.radians(180)),  # 1
    Part.LineSegment(Vector(-4.36, 1.31, 0), Vector(-4.36, 0.38, 0)),  # 2
    Part.ArcOfCircle(Part.Circle(Vector(-4.56, 0.38, 0), Vector(0, 0, 1), 0.2), math.radians(-77), math.radians(0)),  # 3
    Part.LineSegment(Vector(-4.51, 0.19, 0), Vector(-4.8, 0.17, 0)),  # 4
    Part.LineSegment(Vector(-4.8, 0.17, 0), Vector(-4.8, 0, 0)),  # 5
    Part.LineSegment(Vector(-4.8, 0, 0), Vector(-4.42, 0.02, 0)),  # 6
    Part.ArcOfCircle(Part.Circle(Vector(-4.43, 0.27, 0), Vector(0, 0, 1), 0.24), math.radians(-86), math.radians(0)),  # 7
    Part.LineSegment(Vector(-4.19, 0.27, 0), Vector(-4.19, 1.19, 0)),  # 8
    Part.ArcOfCircle(Part.Circle(Vector(-3.99, 1.19, 0), Vector(0, 0, 1), 0.2), math.radians(90), math.radians(180)),  # 9
    Part.LineSegment(Vector(-3.99, 1.39, 0), Vector(-3.75, 1.39, 0)),  # 10
    Part.LineSegment(Vector(-3.75, 1.39, 0), Vector(-3.75, 1.56, 0)),  # 11
], False)
sketch9.addConstraint([
    Sketcher.Constraint("Tangent", 0, 2, 1, 1),
    Sketcher.Constraint("Tangent", 1, 2, 2, 1),
    Sketcher.Constraint("Tangent", 2, 2, 3, 2),
    Sketcher.Constraint("Coincident", 3, 1, 4, 1),
    Sketcher.Constraint("Coincident", 4, 2, 5, 1),
    Sketcher.Constraint("Coincident", 5, 2, 6, 1),
    Sketcher.Constraint("Coincident", 6, 2, 7, 1),
    Sketcher.Constraint("Tangent", 7, 2, 8, 1),
    Sketcher.Constraint("Tangent", 8, 2, 9, 2),
    Sketcher.Constraint("Tangent", 9, 1, 10, 1),
    Sketcher.Constraint("Coincident", 10, 2, 11, 1),
    Sketcher.Constraint("Coincident", 11, 2, 0, 1),
    Sketcher.Constraint("Horizontal", 0),
    Sketcher.Constraint("Vertical", 2),
    Sketcher.Constraint("Vertical", 5),
    Sketcher.Constraint("Vertical", 8),
    Sketcher.Constraint("Horizontal", 10),
    Sketcher.Constraint("Vertical", 11),
    Sketcher.Constraint("Equal", 3, 9),
    Sketcher.Constraint("PointOnObject", 5, 2, -1),
    Sketcher.Constraint("Parallel", 4, 6),
    Sketcher.Constraint("Radius", 3, Q("0.2 mm")),
    Sketcher.Constraint("Angle", 4, Q("-176.5 deg")),
    Sketcher.Constraint("DistanceX", 10, 1, 10, 2, Q("0.24 mm")),
    Sketcher.Constraint("DistanceY", 11, 1, 11, 2, Q("0.17 mm")),
    Sketcher.Constraint("DistanceX", 4, 2, -1, 1, Q("4.8 mm")),
    Sketcher.Constraint("DistanceX", 3, 3, -1, 1, Q("4.56 mm")),
    Sketcher.Constraint("DistanceX", 9, 3, -1, 1, Q("3.99 mm")),
    Sketcher.Constraint("DistanceY", -1, 1, 9, 3, Q("1.19 mm")),
    Sketcher.Constraint("Radius", 1, Q("0.249792 mm")),
    Sketcher.Constraint("Radius", 7, Q("0.244673 mm")),
    Sketcher.Constraint("DistanceY", 2, 2, 2, 1, Q("0.927871 mm")),
    Sketcher.Constraint("DistanceY", 5, 2, 5, 1, Q("0.170318 mm")),
    Sketcher.Constraint("DistanceY", 6, 2, 3, 1, Q("0.164591 mm")),
])
pad9 = body.newObject("PartDesign::Pad", "Pad008")
pad9.Profile = sketch9
pad9.Length = 0.41
pad9.Midplane = True

# Sketch on XZ plane
sketch10 = body.newObject("Sketcher::SketchObject", "Sketch009")
sketch10.AttachmentSupport = (doc.getObject("XZ_Plane"), [""])
sketch10.MapMode = "FlatFace"
sketch10.AttachmentOffset = App.Placement(Vector(0, 0, -2.8), App.Rotation())
sketch10.addGeometry(Part.Circle(Vector(-2.7, -3.9, 0), Vector(0, 0, 1), 0.4), False)
sketch10.addConstraint([
    Sketcher.Constraint("Diameter", 0, Q("0.8 mm")),
    Sketcher.Constraint("DistanceX", 0, 3, -1, 1, Q("2.700803 mm")),
    Sketcher.Constraint("DistanceY", 0, 3, -1, 1, Q("3.900803 mm")),
])
pocket1 = body.newObject("PartDesign::Pocket", "Pocket")
pocket1.Profile = sketch10
pocket1.Length = 0.3
pocket1.Reversed = True
doc.recompute()

chamfer = body.newObject("PartDesign::Chamfer", "Chamfer")
chamfer.Base = (pocket1, edges_at(pocket1, [(-3.75, 2.8, 0)]))
chamfer.Size = 0.35

doc.recompute()
